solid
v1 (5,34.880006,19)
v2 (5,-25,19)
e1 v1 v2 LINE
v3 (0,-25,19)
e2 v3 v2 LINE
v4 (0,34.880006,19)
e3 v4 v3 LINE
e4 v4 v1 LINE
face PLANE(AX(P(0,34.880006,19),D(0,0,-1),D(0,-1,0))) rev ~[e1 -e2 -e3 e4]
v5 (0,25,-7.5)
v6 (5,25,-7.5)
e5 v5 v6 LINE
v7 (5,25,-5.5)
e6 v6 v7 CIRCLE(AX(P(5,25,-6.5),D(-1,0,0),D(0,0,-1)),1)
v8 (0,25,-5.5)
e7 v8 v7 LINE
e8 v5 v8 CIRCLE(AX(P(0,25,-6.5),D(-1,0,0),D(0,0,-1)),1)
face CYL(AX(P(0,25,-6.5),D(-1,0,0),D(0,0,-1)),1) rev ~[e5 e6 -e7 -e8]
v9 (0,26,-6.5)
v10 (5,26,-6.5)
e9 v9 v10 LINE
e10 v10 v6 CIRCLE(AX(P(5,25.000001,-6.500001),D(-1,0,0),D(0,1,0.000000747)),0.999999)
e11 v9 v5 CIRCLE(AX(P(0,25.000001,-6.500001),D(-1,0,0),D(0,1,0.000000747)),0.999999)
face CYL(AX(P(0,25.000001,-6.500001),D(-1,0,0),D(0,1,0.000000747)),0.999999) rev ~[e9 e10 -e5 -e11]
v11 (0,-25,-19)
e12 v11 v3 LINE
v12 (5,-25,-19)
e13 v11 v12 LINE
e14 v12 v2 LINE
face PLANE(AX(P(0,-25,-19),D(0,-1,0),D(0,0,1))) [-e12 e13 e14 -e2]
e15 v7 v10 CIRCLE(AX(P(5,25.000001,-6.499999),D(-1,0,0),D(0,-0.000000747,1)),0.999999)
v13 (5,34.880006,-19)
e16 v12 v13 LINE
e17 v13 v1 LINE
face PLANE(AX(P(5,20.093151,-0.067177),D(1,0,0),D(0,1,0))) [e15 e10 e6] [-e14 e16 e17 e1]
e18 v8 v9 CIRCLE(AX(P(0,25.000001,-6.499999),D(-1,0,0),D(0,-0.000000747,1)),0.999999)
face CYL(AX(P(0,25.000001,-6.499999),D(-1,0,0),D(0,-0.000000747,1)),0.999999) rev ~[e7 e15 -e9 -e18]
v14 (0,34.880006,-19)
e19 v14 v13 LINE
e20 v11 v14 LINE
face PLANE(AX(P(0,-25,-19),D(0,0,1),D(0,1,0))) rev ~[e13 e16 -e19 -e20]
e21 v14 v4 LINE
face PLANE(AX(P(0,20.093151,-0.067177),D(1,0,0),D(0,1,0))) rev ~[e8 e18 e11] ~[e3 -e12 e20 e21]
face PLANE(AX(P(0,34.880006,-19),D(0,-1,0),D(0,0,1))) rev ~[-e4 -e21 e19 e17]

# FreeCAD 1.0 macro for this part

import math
import FreeCAD as App
import Part
import Sketcher
from FreeCAD import Vector
Q = App.Units.Quantity

doc = App.newDocument("Part")
body = doc.addObject("PartDesign::Body", "Body")

sketch1 = body.newObject("Sketcher::SketchObject", "Sketch")
sketch1.AttachmentSupport = (doc.getObject("YZ_Plane"), [""])
sketch1.MapMode = "FlatFace"
sketch1.addGeometry([
    Part.LineSegment(Vector(34.880006, -19, 0), Vector(34.880006, 19, 0)),
    Part.LineSegment(Vector(34.880006, 19, 0), Vector(-25, 19, 0)),
    Part.LineSegment(Vector(-25, 19, 0), Vector(-25, -19, 0)),
    Part.LineSegment(Vector(-25, -19, 0), Vector(34.880006, -19, 0)),
    Part.ArcOfCircle(Part.Circle(Vector(25, -6.5, 0), Vector(0, 0, 1), 1), math.radians(90), math.radians(270)),
    Part.ArcOfCircle(Part.Circle(Vector(25.000001, -6.499999, 0), Vector(0, 0, 1), 0.999999), math.radians(-0.000043), math.radians(90.000043)),
    Part.ArcOfCircle(Part.Circle(Vector(25.000001, -6.500001, 0), Vector(0, 0, 1), 0.999999), math.radians(-90.000043), math.radians(0.000043)),
], False)
sketch1.addConstraint([
    Sketcher.Constraint("Coincident", 0, 2, 1, 1),
    Sketcher.Constraint("Coincident", 1, 2, 2, 1),
    Sketcher.Constraint("Coincident", 2, 2, 3, 1),
    Sketcher.Constraint("Coincident", 3, 2, 0, 1),
    Sketcher.Constraint("Tangent", 4, 1, 5, 2),
    Sketcher.Constraint("Tangent", 5, 1, 6, 2),
    Sketcher.Constraint("Tangent", 6, 1, 4, 2),
    Sketcher.Constraint("Vertical", 0),
    Sketcher.Constraint("Horizontal", 1),
    Sketcher.Constraint("Vertical", 2),
    Sketcher.Constraint("Horizontal", 3),
    Sketcher.Constraint("Horizontal", 6, 3, 5, 1),
    Sketcher.Constraint("Vertical", 6, 3, 4, 1),
    Sketcher.Constraint("Vertical", 4, 1, 6, 1),
    Sketcher.Constraint("Radius", 4, Q("1 mm")),
    Sketcher.Constraint("DistanceY", 0, 1, 0, 2, Q("38 mm")),
    Sketcher.Constraint("DistanceX", -1, 1, 4, 3, Q("25 mm")),
    Sketcher.Constraint("DistanceY", -1, 1, 0, 2, Q("19 mm")),
    Sketcher.Constraint("DistanceX", 1, 2, -1, 1, Q("25 mm")),
    Sketcher.Constraint("DistanceY", 4, 3, -1, 1, Q("6.5 mm")),
    Sketcher.Constraint("DistanceX", 1, 2, 1, 1, Q("59.880006 mm")),
])
pad1 = body.newObject("PartDesign::Pad", "Pad")
pad1.Profile = sketch1
pad1.Length = 5

doc.recompute()
